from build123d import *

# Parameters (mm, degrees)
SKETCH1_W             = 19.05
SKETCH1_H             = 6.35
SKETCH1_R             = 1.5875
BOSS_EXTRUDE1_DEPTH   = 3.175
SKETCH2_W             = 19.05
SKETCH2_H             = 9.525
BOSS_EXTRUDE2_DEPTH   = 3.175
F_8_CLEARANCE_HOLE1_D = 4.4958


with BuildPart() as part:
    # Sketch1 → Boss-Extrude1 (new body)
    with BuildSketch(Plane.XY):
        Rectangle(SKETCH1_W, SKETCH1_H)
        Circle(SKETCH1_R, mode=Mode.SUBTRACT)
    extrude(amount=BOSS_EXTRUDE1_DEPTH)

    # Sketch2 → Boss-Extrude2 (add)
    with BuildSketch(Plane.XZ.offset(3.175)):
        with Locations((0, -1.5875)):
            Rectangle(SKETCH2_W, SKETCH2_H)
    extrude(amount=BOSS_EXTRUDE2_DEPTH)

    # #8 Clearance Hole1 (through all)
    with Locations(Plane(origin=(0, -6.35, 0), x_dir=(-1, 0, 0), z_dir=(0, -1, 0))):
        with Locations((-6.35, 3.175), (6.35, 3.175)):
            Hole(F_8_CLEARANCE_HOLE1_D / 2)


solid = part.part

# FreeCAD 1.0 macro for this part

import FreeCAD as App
import Part
import Sketcher

V = App.Vector
Q = App.Units.Quantity

doc = App.newDocument("Part")
body = doc.addObject("PartDesign::Body", "Body")

# Sketch on XY plane
sketch1 = body.newObject("Sketcher::SketchObject", "Sketch")
sketch1.AttachmentSupport = (doc.getObject("XY_Plane"), [""])
sketch1.MapMode = "FlatFace"
sketch1.addGeometry(Part.LineSegment(V(-9.525, 3.175, 0), V(-9.525, -3.175, 0)), False)
sketch1.addGeometry(Part.LineSegment(V(-9.525, -3.175, 0), V(9.525, -3.175, 0)), False)
sketch1.addGeometry(Part.LineSegment(V(9.525, -3.175, 0), V(9.525, 3.175, 0)), False)
sketch1.addGeometry(Part.LineSegment(V(9.525, 3.175, 0), V(-9.525, 3.175, 0)), False)
sketch1.addGeometry(Part.Circle(V(0, 0, 0), V(0, 0, 1), 1.5875), False)
sketch1.addConstraint(Sketcher.Constraint("Coincident", 0, 2, 1, 1))
sketch1.addConstraint(Sketcher.Constraint("Coincident", 1, 2, 2, 1))
sketch1.addConstraint(Sketcher.Constraint("Coincident", 2, 2, 3, 1))
sketch1.addConstraint(Sketcher.Constraint("Coincident", 3, 2, 0, 1))
sketch1.addConstraint(Sketcher.Constraint("Vertical", 0))
sketch1.addConstraint(Sketcher.Constraint("Horizontal", 1))
sketch1.addConstraint(Sketcher.Constraint("Vertical", 2))
sketch1.addConstraint(Sketcher.Constraint("Horizontal", 3))
sketch1.addConstraint(Sketcher.Constraint("Coincident", 4, 3, -1, 1))
sketch1.addConstraint(Sketcher.Constraint("Symmetric", 0, 2, 2, 2, -1, 1))
sketch1.addConstraint(Sketcher.Constraint("Diameter", 4, Q("0.125 in")))
sketch1.addConstraint(Sketcher.Constraint("DistanceX", 1, 1, 1, 2, Q("0.75 in")))
sketch1.addConstraint(Sketcher.Constraint("DistanceY", 0, 2, 0, 1, Q("0.25 in")))
pad1 = body.newObject("PartDesign::Pad", "Pad")
pad1.Profile = sketch1
pad1.Length = Q("0.125 in")

# Sketch on XZ plane
sketch2 = body.newObject("Sketcher::SketchObject", "Sketch001")
sketch2.AttachmentSupport = (doc.getObject("XZ_Plane"), [""])
sketch2.MapMode = "FlatFace"
sketch2.AttachmentOffset = App.Placement(V(0, 0, 0.125 * 25.4), App.Rotation())
sketch2.addGeometry(Part.LineSegment(V(-9.525, 3.175, 0), V(-9.525, -6.35, 0)), False)
sketch2.addGeometry(Part.LineSegment(V(-9.525, -6.35, 0), V(9.525, -6.35, 0)), False)
sketch2.addGeometry(Part.LineSegment(V(9.525, -6.35, 0), V(9.525, 3.175, 0)), False)
sketch2.addGeometry(Part.LineSegment(V(9.525, 3.175, 0), V(-9.525, 3.175, 0)), False)
sketch2.addConstraint(Sketcher.Constraint("Coincident", 0, 2, 1, 1))
sketch2.addConstraint(Sketcher.Constraint("Coincident", 1, 2, 2, 1))
sketch2.addConstraint(Sketcher.Constraint("Coincident", 2, 2, 3, 1))
sketch2.addConstraint(Sketcher.Constraint("Coincident", 3, 2, 0, 1))
sketch2.addConstraint(Sketcher.Constraint("Vertical", 0))
sketch2.addConstraint(Sketcher.Constraint("Horizontal", 1))
sketch2.addConstraint(Sketcher.Constraint("Vertical", 2))
sketch2.addConstraint(Sketcher.Constraint("Horizontal", 3))
sketch2.addConstraint(Sketcher.Constraint("DistanceX", 1, 1, 1, 2, Q("0.75 in")))
sketch2.addConstraint(Sketcher.Constraint("DistanceY", 0, 2, 0, 1, Q("0.375 in")))
sketch2.addConstraint(Sketcher.Constraint("DistanceY", 0, 2, -1, 1, Q("0.25 in")))
sketch2.addConstraint(Sketcher.Constraint("DistanceX", 0, 2, -1, 1, Q("0.375 in")))
pad2 = body.newObject("PartDesign::Pad", "Pad001")
pad2.Profile = sketch2
pad2.Length = Q("0.125 in")

# Sketch on XZ plane
sketch3 = body.newObject("Sketcher::SketchObject", "Sketch002")
sketch3.AttachmentSupport = (doc.getObject("XZ_Plane"), [""])
sketch3.MapMode = "FlatFace"
sketch3.AttachmentOffset = App.Placement(V(0, 0, 0.25 * 25.4), App.Rotation())
sketch3.addGeometry(Part.Circle(V(6.35, -3.175, 0), V(0, 0, 1), 2.2479), False)
sketch3.addGeometry(Part.Circle(V(-6.35, -3.175, 0), V(0, 0, 1), 2.2479), False)
sketch3.addConstraint(Sketcher.Constraint("Equal", 0, 1))
sketch3.addConstraint(Sketcher.Constraint("Symmetric", 0, 3, 1, 3, -2))
sketch3.addConstraint(Sketcher.Constraint("Diameter", 0, Q("0.177 in")))
sketch3.addConstraint(Sketcher.Constraint("DistanceX", 1, 3, 0, 3, Q("0.5 in")))
sketch3.addConstraint(Sketcher.Constraint("DistanceY", 0, 3, -1, 1, Q("0.125 in")))
doc.recompute()
hole = body.newObject("PartDesign::Hole", "Hole")
hole.Profile = sketch3
hole.ThreadType = "None"
hole.Diameter = Q("0.177 in")
hole.DepthType = "ThroughAll"

doc.recompute()
